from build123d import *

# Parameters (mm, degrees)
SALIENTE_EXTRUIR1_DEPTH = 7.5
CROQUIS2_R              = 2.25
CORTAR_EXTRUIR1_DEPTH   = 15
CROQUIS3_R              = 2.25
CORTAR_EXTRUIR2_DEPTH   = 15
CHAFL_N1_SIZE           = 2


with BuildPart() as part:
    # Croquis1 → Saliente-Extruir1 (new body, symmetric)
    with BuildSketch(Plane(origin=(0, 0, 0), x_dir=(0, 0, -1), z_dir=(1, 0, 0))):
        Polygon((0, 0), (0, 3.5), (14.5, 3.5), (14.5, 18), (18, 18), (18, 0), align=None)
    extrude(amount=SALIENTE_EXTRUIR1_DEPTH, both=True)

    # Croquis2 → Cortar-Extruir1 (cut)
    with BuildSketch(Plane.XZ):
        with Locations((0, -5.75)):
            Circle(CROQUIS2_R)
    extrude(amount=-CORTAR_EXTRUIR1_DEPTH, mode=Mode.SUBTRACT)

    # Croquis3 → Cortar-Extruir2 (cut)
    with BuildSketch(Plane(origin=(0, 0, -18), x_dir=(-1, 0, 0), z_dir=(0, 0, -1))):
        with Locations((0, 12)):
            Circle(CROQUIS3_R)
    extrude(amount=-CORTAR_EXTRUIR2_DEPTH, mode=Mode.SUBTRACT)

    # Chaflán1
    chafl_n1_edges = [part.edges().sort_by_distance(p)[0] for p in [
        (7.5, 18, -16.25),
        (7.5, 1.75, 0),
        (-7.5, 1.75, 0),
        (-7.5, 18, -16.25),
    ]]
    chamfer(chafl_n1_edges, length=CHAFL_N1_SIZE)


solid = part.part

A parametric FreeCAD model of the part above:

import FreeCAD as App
import Part
import Sketcher
Q = App.Units.Quantity


def edges_at(feature, points):
    """Names of the edges that pass closest to the given points."""
    edges = feature.Shape.Edges
    near = lambda p: min(range(len(edges)), key=lambda i: edges[i].distToShape(Part.Vertex(*p))[0])
    return sorted({f"Edge{near(p) + 1}" for p in points})

doc = App.newDocument("Part")
body = doc.addObject("PartDesign::Body", "Body")

sketch1 = doc.addObject("Sketcher::SketchObject", "Sketch")
body.addObject(sketch1)
sketch1.AttachmentSupport = (doc.YZ_Plane, [""])
sketch1.MapMode = "FlatFace"
sketch1.addGeometry([
    Part.LineSegment(App.Vector(3.5, 0, 0), App.Vector(0, 0, 0)),
    Part.LineSegment(App.Vector(0, 0, 0), App.Vector(0, -18, 0)),
    Part.LineSegment(App.Vector(0, -18, 0), App.Vector(18, -18, 0)),
    Part.LineSegment(App.Vector(18, -18, 0), App.Vector(18, -14.5, 0)),
    Part.LineSegment(App.Vector(18, -14.5, 0), App.Vector(3.5, -14.5, 0)),
    Part.LineSegment(App.Vector(3.5, -14.5, 0), App.Vector(3.5, 0, 0)),
], False)
sketch1.addConstraint([
    Sketcher.Constraint("Coincident", 0, 2, 1, 1),
    Sketcher.Constraint("Coincident", 1, 2, 2, 1),
    Sketcher.Constraint("Coincident", 2, 2, 3, 1),
    Sketcher.Constraint("Coincident", 3, 2, 4, 1),
    Sketcher.Constraint("Coincident", 4, 2, 5, 1),
    Sketcher.Constraint("Coincident", 5, 2, 0, 1),
    Sketcher.Constraint("Horizontal", 0),
    Sketcher.Constraint("Vertical", 1),
    Sketcher.Constraint("Horizontal", 2),
    Sketcher.Constraint("Vertical", 3),
    Sketcher.Constraint("Horizontal", 4),
    Sketcher.Constraint("Vertical", 5),
    Sketcher.Constraint("Coincident", 0, 2, -1, 1),
    Sketcher.Constraint("Equal", 2, 1),
    Sketcher.Constraint("Equal", 0, 3),
    Sketcher.Constraint("DistanceX", 2, 1, 2, 2, Q("18 mm")),
    Sketcher.Constraint("DistanceX", 0, 2, 0, 1, Q("3.5 mm")),
])
pad1 = doc.addObject("PartDesign::Pad", "Pad")
body.addObject(pad1)
pad1.Profile = sketch1
pad1.Length = 15
pad1.Midplane = True

sketch2 = doc.addObject("Sketcher::SketchObject", "Sketch001")
body.addObject(sketch2)
sketch2.AttachmentSupport = (doc.XZ_Plane, [""])
sketch2.MapMode = "FlatFace"
sketch2.addGeometry(Part.Circle(App.Vector(0, -5.75, 0), App.Vector(0, 0, 1), 2.25), False)
sketch2.addConstraint([
    Sketcher.Constraint("PointOnObject", 0, 3, -2),
    Sketcher.Constraint("Diameter", 0, Q("4.5 mm")),
    Sketcher.Constraint("DistanceY", 0, 3, -1, 1, Q("5.75 mm")),
])
pocket1 = doc.addObject("PartDesign::Pocket", "Pocket")
body.addObject(pocket1)
pocket1.Profile = sketch2
pocket1.Length = 15

sketch3 = doc.addObject("Sketcher::SketchObject", "Sketch002")
body.addObject(sketch3)
sketch3.AttachmentSupport = (doc.XY_Plane, [""])
sketch3.MapMode = "FlatFace"
sketch3.AttachmentOffset = App.Placement(App.Vector(0, 0, -18), App.Rotation())
sketch3.addGeometry(Part.Circle(App.Vector(0, 12, 0), App.Vector(0, 0, 1), 2.25), False)
sketch3.addConstraint([
    Sketcher.Constraint("PointOnObject", 0, 3, -2),
    Sketcher.Constraint("Diameter", 0, Q("4.5 mm")),
    Sketcher.Constraint("DistanceY", -1, 1, 0, 3, Q("12 mm")),
])
pocket2 = doc.addObject("PartDesign::Pocket", "Pocket001")
body.addObject(pocket2)
pocket2.Profile = sketch3
pocket2.Length = 15
pocket2.Reversed = True
doc.recompute()

chamfer = doc.addObject("PartDesign::Chamfer", "Chamfer")
body.addObject(chamfer)
chamfer.Base = (pocket2, edges_at(pocket2, [
    (7.5, 18, -16.25),
    (7.5, 1.75, 0),
    (-7.5, 1.75, 0),
    (-7.5, 18, -16.25),
]))
chamfer.Size = 2

doc.recompute()
